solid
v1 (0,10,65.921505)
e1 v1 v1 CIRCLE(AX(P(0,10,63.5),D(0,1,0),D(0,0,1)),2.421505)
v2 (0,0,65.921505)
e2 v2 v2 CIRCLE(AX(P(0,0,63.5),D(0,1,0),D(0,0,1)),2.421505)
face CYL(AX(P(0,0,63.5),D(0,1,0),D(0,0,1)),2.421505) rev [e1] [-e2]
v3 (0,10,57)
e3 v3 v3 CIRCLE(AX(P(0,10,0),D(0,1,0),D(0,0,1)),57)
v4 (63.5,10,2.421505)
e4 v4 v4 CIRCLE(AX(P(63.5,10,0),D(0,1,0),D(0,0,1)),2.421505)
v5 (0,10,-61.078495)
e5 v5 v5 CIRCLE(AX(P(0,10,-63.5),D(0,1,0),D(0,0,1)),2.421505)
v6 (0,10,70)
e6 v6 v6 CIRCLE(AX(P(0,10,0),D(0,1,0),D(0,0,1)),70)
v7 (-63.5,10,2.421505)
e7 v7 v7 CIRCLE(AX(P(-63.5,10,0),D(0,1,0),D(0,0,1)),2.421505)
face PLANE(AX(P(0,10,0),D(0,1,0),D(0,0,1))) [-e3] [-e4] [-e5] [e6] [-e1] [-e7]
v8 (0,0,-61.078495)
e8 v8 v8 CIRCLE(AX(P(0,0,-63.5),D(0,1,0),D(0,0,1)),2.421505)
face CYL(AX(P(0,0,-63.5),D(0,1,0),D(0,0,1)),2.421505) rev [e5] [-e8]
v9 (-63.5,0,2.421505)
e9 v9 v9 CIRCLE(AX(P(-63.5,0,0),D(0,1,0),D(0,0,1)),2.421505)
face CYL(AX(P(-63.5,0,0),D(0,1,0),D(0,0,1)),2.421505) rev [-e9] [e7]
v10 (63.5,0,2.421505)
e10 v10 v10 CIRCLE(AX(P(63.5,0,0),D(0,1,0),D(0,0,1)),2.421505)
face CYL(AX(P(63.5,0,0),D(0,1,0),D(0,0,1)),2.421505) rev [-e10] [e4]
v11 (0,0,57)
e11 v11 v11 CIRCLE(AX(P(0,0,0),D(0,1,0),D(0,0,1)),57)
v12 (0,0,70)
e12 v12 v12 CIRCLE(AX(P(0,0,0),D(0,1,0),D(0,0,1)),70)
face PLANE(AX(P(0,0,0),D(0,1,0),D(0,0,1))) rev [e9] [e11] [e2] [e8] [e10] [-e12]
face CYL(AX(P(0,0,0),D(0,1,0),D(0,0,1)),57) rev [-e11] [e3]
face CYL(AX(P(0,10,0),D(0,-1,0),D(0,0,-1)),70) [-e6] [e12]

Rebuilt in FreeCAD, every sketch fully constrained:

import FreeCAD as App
import Part
import Sketcher
from FreeCAD import Vector
Q = App.Units.Quantity

doc = App.newDocument("Part")
params = doc.addObject("Spreadsheet::Sheet", "Params")
for row, (alias, value) in enumerate([
    ("sketch1_diameter", "140 mm"),
    ("pad1_length", "10 mm"),
    ("sketch2_diameter", "114 mm"),
    ("pocket1_length", "10 mm"),
    ("pocket2_length", "10 mm"),
], start=1):
    params.set(f"A{row}", alias)
    params.set(f"B{row}", "=" + value)
    params.setAlias(f"B{row}", alias)

body = doc.addObject("PartDesign::Body", "Body")

# Sketch on XZ plane
sketch1 = body.newObject("Sketcher::SketchObject", "Sketch")
sketch1.AttachmentSupport = (doc.getObject("XZ_Plane"), [""])
sketch1.MapMode = "FlatFace"
sketch1.addGeometry(Part.Circle(Vector(0, 0, 0), Vector(0, 0, 1), 70), False)
sketch1.addConstraint(Sketcher.Constraint("Coincident", 0, 3, -1, 1))
sketch1.addConstraint(Sketcher.Constraint("Diameter", 0, Q("140 mm")))
sketch1.setExpression("Constraints[1]", "Params.sketch1_diameter")
pad1 = body.newObject("PartDesign::Pad", "Pad")
pad1.Profile = sketch1
pad1.setExpression("Length", "Params.pad1_length")
pad1.Reversed = True

# Sketch on XZ plane
sketch2 = body.newObject("Sketcher::SketchObject", "Sketch001")
sketch2.AttachmentSupport = (doc.getObject("XZ_Plane"), [""])
sketch2.MapMode = "FlatFace"
sketch2.AttachmentOffset = App.Placement(Vector(0, 0, -10), App.Rotation())
sketch2.addGeometry(Part.Circle(Vector(0, 0, 0), Vector(0, 0, 1), 57), False)
sketch2.addConstraint(Sketcher.Constraint("Coincident", 0, 3, -1, 1))
sketch2.addConstraint(Sketcher.Constraint("Diameter", 0, Q("114 mm")))
sketch2.setExpression("Constraints[1]", "Params.sketch2_diameter")
pocket1 = body.newObject("PartDesign::Pocket", "Pocket")
pocket1.Profile = sketch2
pocket1.setExpression("Length", "Params.pocket1_length")
pocket1.Reversed = True

# Sketch on XZ plane
sketch3 = body.newObject("Sketcher::SketchObject", "Sketch002")
sketch3.AttachmentSupport = (doc.getObject("XZ_Plane"), [""])
sketch3.MapMode = "FlatFace"
sketch3.AttachmentOffset = App.Placement(Vector(0, 0, -10), App.Rotation())
sketch3.addGeometry(Part.Circle(Vector(-63.5, 0, 0), Vector(0, 0, 1), 2.4), False)
sketch3.addGeometry(Part.Circle(Vector(0, -63.5, 0), Vector(0, 0, 1), 2.4), False)
sketch3.addGeometry(Part.Circle(Vector(63.5, 0, 0), Vector(0, 0, 1), 2.4), False)
sketch3.addGeometry(Part.Circle(Vector(0, 63.5, 0), Vector(0, 0, 1), 2.4), False)
sketch3.addConstraint(Sketcher.Constraint("Equal", 0, 1))
sketch3.addConstraint(Sketcher.Constraint("Equal", 1, 2))
sketch3.addConstraint(Sketcher.Constraint("Equal", 2, 3))
sketch3.addConstraint(Sketcher.Constraint("Symmetric", 0, 3, 2, 3, -1, 1))
sketch3.addConstraint(Sketcher.Constraint("Symmetric", 1, 3, 3, 3, -1, 1))
sketch3.addConstraint(Sketcher.Constraint("PointOnObject", 0, 3, -1))
sketch3.addConstraint(Sketcher.Constraint("PointOnObject", 1, 3, -2))
sketch3.addConstraint(Sketcher.Constraint("DistanceX", 0, 3, 2, 3, Q("127 mm")))
sketch3.addConstraint(Sketcher.Constraint("DistanceY", 1, 3, 3, 3, Q("127 mm")))
sketch3.addConstraint(Sketcher.Constraint("Diameter", 0, Q("4.843011 mm")))
pocket2 = body.newObject("PartDesign::Pocket", "Pocket001")
pocket2.Profile = sketch3
pocket2.setExpression("Length", "Params.pocket2_length")
pocket2.Reversed = True

doc.recompute()
